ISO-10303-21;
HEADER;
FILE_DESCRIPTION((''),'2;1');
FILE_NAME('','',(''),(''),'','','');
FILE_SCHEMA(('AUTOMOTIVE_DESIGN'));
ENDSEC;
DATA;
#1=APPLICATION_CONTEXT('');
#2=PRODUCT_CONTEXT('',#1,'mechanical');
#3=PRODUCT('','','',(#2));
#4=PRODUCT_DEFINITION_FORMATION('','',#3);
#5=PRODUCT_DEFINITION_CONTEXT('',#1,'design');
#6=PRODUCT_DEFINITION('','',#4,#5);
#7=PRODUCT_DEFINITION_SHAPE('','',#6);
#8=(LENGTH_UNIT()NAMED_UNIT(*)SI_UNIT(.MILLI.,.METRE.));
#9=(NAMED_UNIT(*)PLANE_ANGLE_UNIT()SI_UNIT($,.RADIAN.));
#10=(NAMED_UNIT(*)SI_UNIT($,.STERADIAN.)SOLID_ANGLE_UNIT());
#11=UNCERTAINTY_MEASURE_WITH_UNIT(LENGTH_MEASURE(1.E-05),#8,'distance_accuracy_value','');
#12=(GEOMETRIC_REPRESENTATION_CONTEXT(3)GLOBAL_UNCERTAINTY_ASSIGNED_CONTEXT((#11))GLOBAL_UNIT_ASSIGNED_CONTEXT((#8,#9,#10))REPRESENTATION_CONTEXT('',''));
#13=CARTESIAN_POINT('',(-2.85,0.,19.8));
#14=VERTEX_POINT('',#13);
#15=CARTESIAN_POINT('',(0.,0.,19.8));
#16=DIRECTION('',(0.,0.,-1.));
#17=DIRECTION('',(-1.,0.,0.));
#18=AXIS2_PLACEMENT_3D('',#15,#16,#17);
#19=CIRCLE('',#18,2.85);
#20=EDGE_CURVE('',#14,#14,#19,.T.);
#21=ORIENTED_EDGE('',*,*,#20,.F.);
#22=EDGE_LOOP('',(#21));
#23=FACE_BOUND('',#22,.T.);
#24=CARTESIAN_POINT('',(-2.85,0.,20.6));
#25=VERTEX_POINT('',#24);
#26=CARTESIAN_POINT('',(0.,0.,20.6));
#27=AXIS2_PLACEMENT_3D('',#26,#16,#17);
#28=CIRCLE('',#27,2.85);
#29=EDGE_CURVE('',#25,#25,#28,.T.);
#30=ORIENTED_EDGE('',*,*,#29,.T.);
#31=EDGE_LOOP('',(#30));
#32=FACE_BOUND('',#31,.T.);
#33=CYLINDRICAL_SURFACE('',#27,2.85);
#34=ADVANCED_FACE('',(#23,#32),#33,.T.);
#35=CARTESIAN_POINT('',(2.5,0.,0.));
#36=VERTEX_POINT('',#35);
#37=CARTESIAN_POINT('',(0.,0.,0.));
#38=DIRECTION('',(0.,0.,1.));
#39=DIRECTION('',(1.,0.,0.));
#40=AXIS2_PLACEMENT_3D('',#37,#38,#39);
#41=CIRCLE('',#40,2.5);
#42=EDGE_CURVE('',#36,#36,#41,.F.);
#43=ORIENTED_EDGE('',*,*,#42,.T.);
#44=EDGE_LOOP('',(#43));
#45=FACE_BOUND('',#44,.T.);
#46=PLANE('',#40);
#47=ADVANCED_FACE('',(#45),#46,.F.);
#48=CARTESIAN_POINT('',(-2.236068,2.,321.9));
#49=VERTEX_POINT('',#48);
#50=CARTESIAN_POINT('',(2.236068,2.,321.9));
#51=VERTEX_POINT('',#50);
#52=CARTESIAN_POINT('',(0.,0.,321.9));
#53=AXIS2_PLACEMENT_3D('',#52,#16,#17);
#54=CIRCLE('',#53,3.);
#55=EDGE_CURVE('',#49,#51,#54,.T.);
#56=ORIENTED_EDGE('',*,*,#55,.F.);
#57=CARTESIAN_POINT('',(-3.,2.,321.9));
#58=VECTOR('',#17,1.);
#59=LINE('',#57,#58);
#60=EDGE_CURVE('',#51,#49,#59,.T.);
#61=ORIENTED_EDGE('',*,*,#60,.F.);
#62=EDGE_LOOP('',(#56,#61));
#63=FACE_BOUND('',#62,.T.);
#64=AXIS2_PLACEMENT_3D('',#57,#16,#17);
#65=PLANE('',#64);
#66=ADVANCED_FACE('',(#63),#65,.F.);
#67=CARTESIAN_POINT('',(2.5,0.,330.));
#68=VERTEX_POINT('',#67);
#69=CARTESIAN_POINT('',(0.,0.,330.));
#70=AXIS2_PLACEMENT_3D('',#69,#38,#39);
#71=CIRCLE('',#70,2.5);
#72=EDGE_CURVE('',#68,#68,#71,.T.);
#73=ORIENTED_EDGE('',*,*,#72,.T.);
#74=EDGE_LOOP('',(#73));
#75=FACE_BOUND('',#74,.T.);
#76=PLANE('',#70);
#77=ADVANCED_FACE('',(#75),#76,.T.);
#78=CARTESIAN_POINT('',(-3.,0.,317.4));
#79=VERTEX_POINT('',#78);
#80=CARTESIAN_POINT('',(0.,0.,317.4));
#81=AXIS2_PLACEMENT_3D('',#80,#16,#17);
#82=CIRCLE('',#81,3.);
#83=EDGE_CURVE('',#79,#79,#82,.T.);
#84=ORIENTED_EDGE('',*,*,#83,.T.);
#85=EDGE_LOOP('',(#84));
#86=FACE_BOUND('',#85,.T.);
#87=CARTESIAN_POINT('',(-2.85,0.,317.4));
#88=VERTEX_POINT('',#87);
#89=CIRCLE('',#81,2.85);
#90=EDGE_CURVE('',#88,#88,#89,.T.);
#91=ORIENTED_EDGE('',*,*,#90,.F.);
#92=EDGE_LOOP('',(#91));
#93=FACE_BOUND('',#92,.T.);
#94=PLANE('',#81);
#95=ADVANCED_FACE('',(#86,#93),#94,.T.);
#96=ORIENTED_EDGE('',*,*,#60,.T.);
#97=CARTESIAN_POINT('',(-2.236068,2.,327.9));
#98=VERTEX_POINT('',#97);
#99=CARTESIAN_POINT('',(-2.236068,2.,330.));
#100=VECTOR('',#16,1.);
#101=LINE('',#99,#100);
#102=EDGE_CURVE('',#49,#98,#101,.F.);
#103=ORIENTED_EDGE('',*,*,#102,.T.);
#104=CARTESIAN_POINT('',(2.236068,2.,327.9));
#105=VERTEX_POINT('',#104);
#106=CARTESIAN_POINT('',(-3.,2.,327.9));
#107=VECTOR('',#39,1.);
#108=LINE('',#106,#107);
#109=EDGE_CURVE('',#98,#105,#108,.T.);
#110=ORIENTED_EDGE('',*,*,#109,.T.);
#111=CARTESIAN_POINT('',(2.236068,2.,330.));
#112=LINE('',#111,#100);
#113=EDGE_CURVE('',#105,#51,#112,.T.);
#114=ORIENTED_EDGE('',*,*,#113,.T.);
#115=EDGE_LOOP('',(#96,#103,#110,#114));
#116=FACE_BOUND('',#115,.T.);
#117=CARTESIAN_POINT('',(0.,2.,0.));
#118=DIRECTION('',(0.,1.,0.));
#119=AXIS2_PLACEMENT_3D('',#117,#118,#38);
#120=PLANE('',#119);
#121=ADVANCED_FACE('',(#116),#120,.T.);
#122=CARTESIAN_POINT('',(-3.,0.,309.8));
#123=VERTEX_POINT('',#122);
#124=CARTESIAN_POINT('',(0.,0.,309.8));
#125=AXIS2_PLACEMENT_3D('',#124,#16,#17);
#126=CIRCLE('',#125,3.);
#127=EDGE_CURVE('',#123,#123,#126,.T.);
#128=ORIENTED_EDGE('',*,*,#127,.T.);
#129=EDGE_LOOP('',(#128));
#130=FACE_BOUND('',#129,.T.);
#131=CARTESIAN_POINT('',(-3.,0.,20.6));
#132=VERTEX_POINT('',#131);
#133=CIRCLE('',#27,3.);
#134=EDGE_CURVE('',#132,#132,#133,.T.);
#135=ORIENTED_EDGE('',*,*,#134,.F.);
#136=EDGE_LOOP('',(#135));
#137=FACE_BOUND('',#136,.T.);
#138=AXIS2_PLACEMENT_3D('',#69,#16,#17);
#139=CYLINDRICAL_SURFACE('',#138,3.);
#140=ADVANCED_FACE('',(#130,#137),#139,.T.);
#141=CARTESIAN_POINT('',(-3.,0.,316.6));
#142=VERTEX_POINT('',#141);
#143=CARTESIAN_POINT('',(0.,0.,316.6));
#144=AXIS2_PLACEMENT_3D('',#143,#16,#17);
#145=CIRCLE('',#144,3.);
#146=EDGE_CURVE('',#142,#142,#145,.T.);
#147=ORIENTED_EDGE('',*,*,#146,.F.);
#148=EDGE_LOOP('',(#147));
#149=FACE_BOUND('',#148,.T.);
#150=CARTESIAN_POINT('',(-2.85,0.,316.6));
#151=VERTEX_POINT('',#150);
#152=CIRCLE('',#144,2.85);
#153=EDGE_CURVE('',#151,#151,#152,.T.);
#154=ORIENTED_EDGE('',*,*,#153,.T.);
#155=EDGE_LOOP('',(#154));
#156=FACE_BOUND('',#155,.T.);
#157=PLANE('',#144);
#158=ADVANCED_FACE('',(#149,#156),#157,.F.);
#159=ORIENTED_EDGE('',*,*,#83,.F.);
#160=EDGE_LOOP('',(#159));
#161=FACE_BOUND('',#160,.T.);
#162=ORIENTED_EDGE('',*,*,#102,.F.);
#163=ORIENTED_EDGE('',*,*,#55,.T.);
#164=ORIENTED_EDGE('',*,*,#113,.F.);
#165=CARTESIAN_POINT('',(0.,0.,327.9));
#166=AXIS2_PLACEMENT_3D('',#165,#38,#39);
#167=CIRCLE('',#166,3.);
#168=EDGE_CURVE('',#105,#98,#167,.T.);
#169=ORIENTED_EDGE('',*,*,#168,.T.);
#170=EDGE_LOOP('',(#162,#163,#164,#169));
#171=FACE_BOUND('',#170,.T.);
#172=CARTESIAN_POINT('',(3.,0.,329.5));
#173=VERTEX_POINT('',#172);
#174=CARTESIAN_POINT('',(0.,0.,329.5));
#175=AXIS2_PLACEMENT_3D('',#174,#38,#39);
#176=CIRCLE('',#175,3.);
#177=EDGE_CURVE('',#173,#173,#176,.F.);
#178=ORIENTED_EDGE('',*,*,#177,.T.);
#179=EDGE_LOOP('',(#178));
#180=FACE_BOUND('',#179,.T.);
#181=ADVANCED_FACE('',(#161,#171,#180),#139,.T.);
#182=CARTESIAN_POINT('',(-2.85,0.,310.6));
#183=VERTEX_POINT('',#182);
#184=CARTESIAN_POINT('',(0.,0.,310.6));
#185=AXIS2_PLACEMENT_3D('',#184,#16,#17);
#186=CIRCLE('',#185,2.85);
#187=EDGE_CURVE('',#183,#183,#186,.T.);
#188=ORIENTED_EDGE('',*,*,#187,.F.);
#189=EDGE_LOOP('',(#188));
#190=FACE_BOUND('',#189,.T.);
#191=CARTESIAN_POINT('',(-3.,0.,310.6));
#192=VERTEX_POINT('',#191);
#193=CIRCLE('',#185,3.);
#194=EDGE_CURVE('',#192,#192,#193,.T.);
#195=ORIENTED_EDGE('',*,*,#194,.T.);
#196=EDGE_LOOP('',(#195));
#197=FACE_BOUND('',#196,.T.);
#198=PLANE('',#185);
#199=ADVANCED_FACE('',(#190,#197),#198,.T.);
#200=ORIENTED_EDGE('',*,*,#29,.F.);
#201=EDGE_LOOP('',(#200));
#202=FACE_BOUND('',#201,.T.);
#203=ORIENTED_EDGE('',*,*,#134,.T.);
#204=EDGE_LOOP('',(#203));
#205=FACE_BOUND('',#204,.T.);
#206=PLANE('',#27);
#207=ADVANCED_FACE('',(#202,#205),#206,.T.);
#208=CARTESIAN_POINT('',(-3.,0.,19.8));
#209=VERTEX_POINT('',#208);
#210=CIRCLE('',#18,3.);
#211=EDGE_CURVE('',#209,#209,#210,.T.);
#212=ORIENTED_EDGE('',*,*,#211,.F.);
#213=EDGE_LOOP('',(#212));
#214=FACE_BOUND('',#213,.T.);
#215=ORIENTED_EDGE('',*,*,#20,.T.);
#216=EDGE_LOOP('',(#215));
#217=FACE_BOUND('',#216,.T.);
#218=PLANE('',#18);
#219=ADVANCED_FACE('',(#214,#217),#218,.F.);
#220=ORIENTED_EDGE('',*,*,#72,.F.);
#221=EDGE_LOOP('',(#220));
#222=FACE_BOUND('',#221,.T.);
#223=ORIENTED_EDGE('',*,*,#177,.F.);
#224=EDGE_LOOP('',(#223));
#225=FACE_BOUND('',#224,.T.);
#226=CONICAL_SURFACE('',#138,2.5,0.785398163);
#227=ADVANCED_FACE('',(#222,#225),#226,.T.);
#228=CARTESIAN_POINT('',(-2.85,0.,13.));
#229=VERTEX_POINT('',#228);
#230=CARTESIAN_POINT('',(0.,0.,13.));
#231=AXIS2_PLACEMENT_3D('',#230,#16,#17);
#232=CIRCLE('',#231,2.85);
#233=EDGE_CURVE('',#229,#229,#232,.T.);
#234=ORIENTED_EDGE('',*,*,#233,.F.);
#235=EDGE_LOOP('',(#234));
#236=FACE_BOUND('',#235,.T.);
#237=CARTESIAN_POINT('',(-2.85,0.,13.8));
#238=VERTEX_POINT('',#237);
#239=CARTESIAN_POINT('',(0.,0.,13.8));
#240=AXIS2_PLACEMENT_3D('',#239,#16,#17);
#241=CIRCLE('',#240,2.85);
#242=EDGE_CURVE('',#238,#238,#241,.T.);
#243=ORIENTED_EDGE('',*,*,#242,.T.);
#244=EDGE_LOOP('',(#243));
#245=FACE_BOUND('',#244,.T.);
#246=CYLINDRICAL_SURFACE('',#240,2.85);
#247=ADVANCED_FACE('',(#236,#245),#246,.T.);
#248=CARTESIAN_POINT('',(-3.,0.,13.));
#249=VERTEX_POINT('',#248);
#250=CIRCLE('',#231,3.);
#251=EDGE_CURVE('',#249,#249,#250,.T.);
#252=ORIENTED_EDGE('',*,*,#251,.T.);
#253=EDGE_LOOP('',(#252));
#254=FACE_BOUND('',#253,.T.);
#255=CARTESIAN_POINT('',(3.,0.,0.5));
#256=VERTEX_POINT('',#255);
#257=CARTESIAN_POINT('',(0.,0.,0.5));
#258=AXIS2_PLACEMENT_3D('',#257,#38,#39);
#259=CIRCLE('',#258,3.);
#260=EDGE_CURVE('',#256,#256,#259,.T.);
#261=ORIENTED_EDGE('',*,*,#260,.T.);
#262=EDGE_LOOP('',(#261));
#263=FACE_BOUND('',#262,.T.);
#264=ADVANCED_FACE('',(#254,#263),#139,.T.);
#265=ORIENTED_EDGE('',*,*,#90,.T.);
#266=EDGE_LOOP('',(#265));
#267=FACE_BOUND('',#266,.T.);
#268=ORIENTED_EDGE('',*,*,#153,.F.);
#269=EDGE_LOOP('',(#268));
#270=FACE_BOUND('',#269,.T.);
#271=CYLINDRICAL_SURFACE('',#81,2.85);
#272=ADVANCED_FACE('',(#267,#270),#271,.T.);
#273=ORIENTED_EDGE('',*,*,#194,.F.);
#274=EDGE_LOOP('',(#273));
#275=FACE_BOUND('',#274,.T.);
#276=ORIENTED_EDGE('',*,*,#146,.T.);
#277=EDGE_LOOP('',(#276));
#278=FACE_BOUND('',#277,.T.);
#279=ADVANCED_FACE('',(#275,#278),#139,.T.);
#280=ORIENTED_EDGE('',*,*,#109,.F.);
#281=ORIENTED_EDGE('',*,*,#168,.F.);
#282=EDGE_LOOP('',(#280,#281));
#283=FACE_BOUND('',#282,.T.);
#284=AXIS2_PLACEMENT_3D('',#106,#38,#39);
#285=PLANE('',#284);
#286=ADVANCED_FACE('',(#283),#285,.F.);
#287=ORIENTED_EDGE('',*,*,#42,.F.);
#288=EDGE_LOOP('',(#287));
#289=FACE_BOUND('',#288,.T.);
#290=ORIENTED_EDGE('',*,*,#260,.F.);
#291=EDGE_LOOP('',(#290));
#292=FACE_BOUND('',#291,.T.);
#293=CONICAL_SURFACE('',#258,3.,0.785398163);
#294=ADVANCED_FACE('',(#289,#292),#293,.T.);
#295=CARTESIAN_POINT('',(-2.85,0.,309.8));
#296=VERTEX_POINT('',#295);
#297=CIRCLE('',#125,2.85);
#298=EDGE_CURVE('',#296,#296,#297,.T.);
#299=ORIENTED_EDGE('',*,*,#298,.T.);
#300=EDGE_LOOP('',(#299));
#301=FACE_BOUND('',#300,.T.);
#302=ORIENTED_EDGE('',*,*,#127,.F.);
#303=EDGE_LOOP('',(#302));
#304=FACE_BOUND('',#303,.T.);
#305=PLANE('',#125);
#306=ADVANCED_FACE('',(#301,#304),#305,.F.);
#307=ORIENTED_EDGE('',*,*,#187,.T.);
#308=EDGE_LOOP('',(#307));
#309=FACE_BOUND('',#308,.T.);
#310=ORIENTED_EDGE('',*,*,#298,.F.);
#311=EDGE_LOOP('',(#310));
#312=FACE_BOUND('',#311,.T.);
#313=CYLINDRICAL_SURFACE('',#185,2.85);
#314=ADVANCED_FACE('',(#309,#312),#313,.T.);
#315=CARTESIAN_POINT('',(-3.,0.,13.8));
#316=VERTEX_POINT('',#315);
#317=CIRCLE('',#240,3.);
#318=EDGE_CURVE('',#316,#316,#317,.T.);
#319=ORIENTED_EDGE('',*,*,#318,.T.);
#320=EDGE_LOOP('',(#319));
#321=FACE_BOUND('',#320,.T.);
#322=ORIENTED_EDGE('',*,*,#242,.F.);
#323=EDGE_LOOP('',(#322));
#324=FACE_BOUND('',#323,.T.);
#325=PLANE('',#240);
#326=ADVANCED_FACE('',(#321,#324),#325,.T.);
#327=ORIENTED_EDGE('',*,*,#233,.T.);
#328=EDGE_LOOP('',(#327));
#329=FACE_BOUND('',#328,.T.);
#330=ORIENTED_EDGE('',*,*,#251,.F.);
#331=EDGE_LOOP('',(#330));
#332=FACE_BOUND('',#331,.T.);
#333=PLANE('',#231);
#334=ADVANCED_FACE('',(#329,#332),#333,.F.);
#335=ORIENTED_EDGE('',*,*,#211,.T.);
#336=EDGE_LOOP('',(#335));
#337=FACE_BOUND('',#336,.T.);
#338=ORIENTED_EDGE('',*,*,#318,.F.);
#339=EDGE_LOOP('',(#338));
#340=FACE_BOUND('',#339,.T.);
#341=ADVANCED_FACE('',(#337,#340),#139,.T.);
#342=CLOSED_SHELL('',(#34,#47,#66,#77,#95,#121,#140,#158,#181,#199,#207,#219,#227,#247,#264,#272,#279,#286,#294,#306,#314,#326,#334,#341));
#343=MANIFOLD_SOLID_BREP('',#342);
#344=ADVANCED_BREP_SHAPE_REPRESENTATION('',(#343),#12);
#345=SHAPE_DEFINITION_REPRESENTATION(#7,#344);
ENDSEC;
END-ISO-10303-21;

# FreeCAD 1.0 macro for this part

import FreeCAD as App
import Part
import Sketcher

V = App.Vector


def edges_at(feature, points):
    """Names of the edges that pass closest to the given points."""
    edges = feature.Shape.Edges
    near = lambda p: min(range(len(edges)), key=lambda i: edges[i].distToShape(Part.Vertex(*p))[0])
    return sorted({f"Edge{near(p) + 1}" for p in points})

doc = App.newDocument("Part")
body = doc.addObject("PartDesign::Body", "Body")

# Sketch on XY plane
sketch1 = body.newObject("Sketcher::SketchObject", "Sketch")
sketch1.AttachmentSupport = (doc.getObject("XY_Plane"), [""])
sketch1.MapMode = "FlatFace"
sketch1.addGeometry(Part.Circle(V(0, 0, 0), V(0, 0, 1), 3), False)
sketch1.addConstraint([
    Sketcher.Constraint("Coincident", 0, 3, -1, 1),
    Sketcher.Constraint("Diameter", 0, 6.0),
])
pad1 = body.newObject("PartDesign::Pad", "Pad")
pad1.Profile = sketch1
pad1.Length = 330

# Sketch on XY plane
sketch2 = body.newObject("Sketcher::SketchObject", "Sketch001")
sketch2.AttachmentSupport = (doc.getObject("XY_Plane"), [""])
sketch2.MapMode = "FlatFace"
sketch2.AttachmentOffset = App.Placement(V(0, 0, 13), App.Rotation())
sketch2.addGeometry([
    Part.Circle(V(0, 0, 0), V(0, 0, 1), 3),
    Part.Circle(V(0, 0, 0), V(0, 0, 1), 2.9),
], False)
sketch2.addConstraint([
    Sketcher.Constraint("Coincident", 0, 3, -1, 1),
    Sketcher.Constraint("Coincident", 1, 3, -1, 1),
    Sketcher.Constraint("Diameter", 0, 6.0),
    Sketcher.Constraint("Diameter", 1, 5.7),
])
pocket1 = body.newObject("PartDesign::Pocket", "Pocket")
pocket1.Profile = sketch2
pocket1.Length = 0.8
pocket1.Reversed = True

# Sketch on XY plane
sketch3 = body.newObject("Sketcher::SketchObject", "Sketch002")
sketch3.AttachmentSupport = (doc.getObject("XY_Plane"), [""])
sketch3.MapMode = "FlatFace"
sketch3.AttachmentOffset = App.Placement(V(0, 0, 19.8), App.Rotation())
sketch3.addGeometry([
    Part.Circle(V(0, 0, 0), V(0, 0, 1), 3),
    Part.Circle(V(0, 0, 0), V(0, 0, 1), 2.9),
], False)
sketch3.addConstraint([
    Sketcher.Constraint("Coincident", 0, 3, -1, 1),
    Sketcher.Constraint("Coincident", 1, 3, -1, 1),
    Sketcher.Constraint("Diameter", 0, 6.0),
    Sketcher.Constraint("Diameter", 1, 5.7),
])
pocket2 = body.newObject("PartDesign::Pocket", "Pocket001")
pocket2.Profile = sketch3
pocket2.Length = 0.8
pocket2.Reversed = True

# Sketch on XY plane
sketch4 = body.newObject("Sketcher::SketchObject", "Sketch003")
sketch4.AttachmentSupport = (doc.getObject("XY_Plane"), [""])
sketch4.MapMode = "FlatFace"
sketch4.AttachmentOffset = App.Placement(V(0, 0, 309.8), App.Rotation())
sketch4.addGeometry([
    Part.Circle(V(0, 0, 0), V(0, 0, 1), 3),
    Part.Circle(V(0, 0, 0), V(0, 0, 1), 2.9),
], False)
sketch4.addConstraint([
    Sketcher.Constraint("Coincident", 0, 3, -1, 1),
    Sketcher.Constraint("Coincident", 1, 3, -1, 1),
    Sketcher.Constraint("Diameter", 0, 6.0),
    Sketcher.Constraint("Diameter", 1, 5.7),
])
pocket3 = body.newObject("PartDesign::Pocket", "Pocket002")
pocket3.Profile = sketch4
pocket3.Length = 0.8
pocket3.Reversed = True

# Sketch on XY plane
sketch5 = body.newObject("Sketcher::SketchObject", "Sketch004")
sketch5.AttachmentSupport = (doc.getObject("XY_Plane"), [""])
sketch5.MapMode = "FlatFace"
sketch5.AttachmentOffset = App.Placement(V(0, 0, 316.6), App.Rotation())
sketch5.addGeometry([
    Part.Circle(V(0, 0, 0), V(0, 0, 1), 3),
    Part.Circle(V(0, 0, 0), V(0, 0, 1), 2.9),
], False)
sketch5.addConstraint([
    Sketcher.Constraint("Coincident", 0, 3, -1, 1),
    Sketcher.Constraint("Coincident", 1, 3, -1, 1),
    Sketcher.Constraint("Diameter", 0, 6.0),
    Sketcher.Constraint("Diameter", 1, 5.7),
])
pocket4 = body.newObject("PartDesign::Pocket", "Pocket003")
pocket4.Profile = sketch5
pocket4.Length = 0.8
pocket4.Reversed = True

# Sketch on XZ plane
sketch6 = body.newObject("Sketcher::SketchObject", "Sketch005")
sketch6.AttachmentSupport = (doc.getObject("XZ_Plane"), [""])
sketch6.MapMode = "FlatFace"
sketch6.AttachmentOffset = App.Placement(V(0, 0, -3), App.Rotation())
sketch6.addGeometry([
    Part.LineSegment(V(-3, 322, 0), V(-3, 328, 0)),
    Part.LineSegment(V(-3, 328, 0), V(3, 328, 0)),
    Part.LineSegment(V(3, 328, 0), V(3, 322, 0)),
    Part.LineSegment(V(3, 322, 0), V(-3, 322, 0)),
], False)
sketch6.addConstraint([
    Sketcher.Constraint("Coincident", 0, 2, 1, 1),
    Sketcher.Constraint("Coincident", 1, 2, 2, 1),
    Sketcher.Constraint("Coincident", 2, 2, 3, 1),
    Sketcher.Constraint("Coincident", 3, 2, 0, 1),
    Sketcher.Constraint("Vertical", 0),
    Sketcher.Constraint("Horizontal", 1),
    Sketcher.Constraint("Vertical", 2),
    Sketcher.Constraint("Horizontal", 3),
    Sketcher.Constraint("Equal", 3, 0),
    Sketcher.Constraint("DistanceX", 1, 1, 1, 2, 6.0),
    Sketcher.Constraint("DistanceX", 0, 2, -1, 1, 3.0),
    Sketcher.Constraint("DistanceY", -1, 1, 0, 2, 327.9),
])
pocket5 = body.newObject("PartDesign::Pocket", "Pocket004")
pocket5.Profile = sketch6
pocket5.Length = 1
pocket5.Reversed = True
doc.recompute()

chamfer = body.newObject("PartDesign::Chamfer", "Chamfer")
chamfer.Base = (pocket5, edges_at(pocket5, [(-3, 0, 0), (-3, 0, 330)]))
chamfer.Size = 0.5

doc.recompute()
